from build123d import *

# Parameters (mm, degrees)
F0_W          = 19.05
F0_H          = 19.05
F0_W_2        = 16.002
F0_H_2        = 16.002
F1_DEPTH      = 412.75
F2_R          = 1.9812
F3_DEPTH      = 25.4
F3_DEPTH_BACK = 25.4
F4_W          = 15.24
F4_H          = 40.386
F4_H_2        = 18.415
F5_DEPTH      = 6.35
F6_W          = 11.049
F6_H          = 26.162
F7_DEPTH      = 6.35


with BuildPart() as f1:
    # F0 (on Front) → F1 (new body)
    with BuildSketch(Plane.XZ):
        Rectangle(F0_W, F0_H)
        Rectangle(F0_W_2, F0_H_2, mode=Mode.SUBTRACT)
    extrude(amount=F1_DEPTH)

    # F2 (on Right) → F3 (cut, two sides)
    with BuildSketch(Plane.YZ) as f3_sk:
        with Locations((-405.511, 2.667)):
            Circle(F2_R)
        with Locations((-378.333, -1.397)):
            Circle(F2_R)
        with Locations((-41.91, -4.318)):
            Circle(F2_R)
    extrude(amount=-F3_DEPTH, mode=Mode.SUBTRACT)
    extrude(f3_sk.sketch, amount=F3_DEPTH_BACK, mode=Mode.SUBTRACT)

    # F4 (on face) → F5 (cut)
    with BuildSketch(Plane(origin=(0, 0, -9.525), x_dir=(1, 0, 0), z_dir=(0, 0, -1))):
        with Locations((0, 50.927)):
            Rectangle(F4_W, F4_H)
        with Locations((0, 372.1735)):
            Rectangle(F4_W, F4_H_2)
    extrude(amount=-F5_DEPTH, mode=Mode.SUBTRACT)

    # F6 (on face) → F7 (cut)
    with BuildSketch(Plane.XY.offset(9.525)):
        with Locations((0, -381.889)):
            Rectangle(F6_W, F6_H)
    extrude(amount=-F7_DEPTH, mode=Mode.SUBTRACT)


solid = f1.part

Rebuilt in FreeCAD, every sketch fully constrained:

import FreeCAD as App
import Part
import Sketcher
from FreeCAD import Vector
Q = App.Units.Quantity

doc = App.newDocument("Part")
body = doc.addObject("PartDesign::Body", "Body")

# Sketch on XZ plane
sketch1 = body.newObject("Sketcher::SketchObject", "Sketch")
sketch1.AttachmentSupport = (doc.getObject("XZ_Plane"), [""])
sketch1.MapMode = "FlatFace"
sketch1.addGeometry([
    Part.LineSegment(Vector(-10, 10, 0), Vector(-10, -10, 0)),  # 0
    Part.LineSegment(Vector(-10, -10, 0), Vector(10, -10, 0)),  # 1
    Part.LineSegment(Vector(10, -10, 0), Vector(10, 10, 0)),  # 2
    Part.LineSegment(Vector(10, 10, 0), Vector(-10, 10, 0)),  # 3
    Part.LineSegment(Vector(8, -8, 0), Vector(-8, -8, 0)),  # 4
    Part.LineSegment(Vector(-8, -8, 0), Vector(-8, 8, 0)),  # 5
    Part.LineSegment(Vector(-8, 8, 0), Vector(8, 8, 0)),  # 6
    Part.LineSegment(Vector(8, 8, 0), Vector(8, -8, 0)),  # 7
], False)
sketch1.addConstraint([
    Sketcher.Constraint("Coincident", 0, 2, 1, 1),
    Sketcher.Constraint("Coincident", 1, 2, 2, 1),
    Sketcher.Constraint("Coincident", 2, 2, 3, 1),
    Sketcher.Constraint("Coincident", 3, 2, 0, 1),
    Sketcher.Constraint("Coincident", 4, 2, 5, 1),
    Sketcher.Constraint("Coincident", 5, 2, 6, 1),
    Sketcher.Constraint("Coincident", 6, 2, 7, 1),
    Sketcher.Constraint("Coincident", 7, 2, 4, 1),
    Sketcher.Constraint("Vertical", 0),
    Sketcher.Constraint("Horizontal", 1),
    Sketcher.Constraint("Vertical", 2),
    Sketcher.Constraint("Horizontal", 3),
    Sketcher.Constraint("Horizontal", 4),
    Sketcher.Constraint("Vertical", 5),
    Sketcher.Constraint("Horizontal", 6),
    Sketcher.Constraint("Vertical", 7),
    Sketcher.Constraint("Symmetric", 0, 2, 2, 2, -1, 1),
    Sketcher.Constraint("Symmetric", 4, 2, 6, 2, -1, 1),
    Sketcher.Constraint("Equal", 3, 0),
    Sketcher.Constraint("Equal", 6, 5),
    Sketcher.Constraint("DistanceX", 1, 1, 1, 2, Q("0.75 in")),
    Sketcher.Constraint("DistanceX", 4, 2, 4, 1, Q("0.63 in")),
])
pad1 = body.newObject("PartDesign::Pad", "Pad")
pad1.Profile = sketch1
pad1.Length = Q("16.25 in")

# Sketch on YZ plane
sketch2 = body.newObject("Sketcher::SketchObject", "Sketch001")
sketch2.AttachmentSupport = (doc.getObject("YZ_Plane"), [""])
sketch2.MapMode = "FlatFace"
sketch2.addGeometry([
    Part.Circle(Vector(-405.5, 2.7, 0), Vector(0, 0, 1), 2),
    Part.Circle(Vector(-378.3, -1.4, 0), Vector(0, 0, 1), 2),
    Part.Circle(Vector(-41.9, -4.3, 0), Vector(0, 0, 1), 2),
], False)
sketch2.addConstraint([
    Sketcher.Constraint("Equal", 0, 1),
    Sketcher.Constraint("Equal", 1, 2),
    Sketcher.Constraint("Diameter", 0, Q("0.156 in")),
    Sketcher.Constraint("DistanceX", 2, 3, -1, 1, Q("1.65 in")),
    Sketcher.Constraint("DistanceY", 2, 3, -1, 1, Q("0.17 in")),
    Sketcher.Constraint("DistanceX", 0, 3, 1, 3, Q("1.07 in")),
    Sketcher.Constraint("DistanceY", 1, 3, 0, 3, Q("0.16 in")),
    Sketcher.Constraint("DistanceX", 0, 3, -1, 1, Q("15.965 in")),
    Sketcher.Constraint("DistanceY", -1, 1, 0, 3, Q("0.105 in")),
])
pocket1 = body.newObject("PartDesign::Pocket", "Pocket")
pocket1.Profile = sketch2
pocket1.Type = "ThroughAll"
pocket1.Midplane = True

# Sketch on XY plane
sketch3 = body.newObject("Sketcher::SketchObject", "Sketch002")
sketch3.AttachmentSupport = (doc.getObject("XY_Plane"), [""])
sketch3.MapMode = "FlatFace"
sketch3.AttachmentOffset = App.Placement(Vector(0, 0, -0.375 * 25.4), App.Rotation())
sketch3.addGeometry([
    Part.LineSegment(Vector(-8, -71, 0), Vector(-8, -31, 0)),  # 0
    Part.LineSegment(Vector(-8, -31, 0), Vector(8, -31, 0)),  # 1
    Part.LineSegment(Vector(8, -31, 0), Vector(8, -71, 0)),  # 2
    Part.LineSegment(Vector(8, -71, 0), Vector(-8, -71, 0)),  # 3
    Part.LineSegment(Vector(-8, -381, 0), Vector(-8, -363, 0)),  # 4
    Part.LineSegment(Vector(-8, -363, 0), Vector(8, -363, 0)),  # 5
    Part.LineSegment(Vector(8, -363, 0), Vector(8, -381, 0)),  # 6
    Part.LineSegment(Vector(8, -381, 0), Vector(-8, -381, 0)),  # 7
], False)
sketch3.addConstraint([
    Sketcher.Constraint("Coincident", 0, 2, 1, 1),
    Sketcher.Constraint("Coincident", 1, 2, 2, 1),
    Sketcher.Constraint("Coincident", 2, 2, 3, 1),
    Sketcher.Constraint("Coincident", 3, 2, 0, 1),
    Sketcher.Constraint("Coincident", 4, 2, 5, 1),
    Sketcher.Constraint("Coincident", 5, 2, 6, 1),
    Sketcher.Constraint("Coincident", 6, 2, 7, 1),
    Sketcher.Constraint("Coincident", 7, 2, 4, 1),
    Sketcher.Constraint("Vertical", 0),
    Sketcher.Constraint("Horizontal", 1),
    Sketcher.Constraint("Vertical", 2),
    Sketcher.Constraint("Horizontal", 3),
    Sketcher.Constraint("Vertical", 4),
    Sketcher.Constraint("Horizontal", 5),
    Sketcher.Constraint("Vertical", 6),
    Sketcher.Constraint("Horizontal", 7),
    Sketcher.Constraint("Vertical", 3, 2, 4, 2),
    Sketcher.Constraint("Vertical", 2, 2, 5, 2),
    Sketcher.Constraint("DistanceX", 1, 1, 1, 2, Q("0.6 in")),
    Sketcher.Constraint("DistanceY", 0, 1, 0, 2, Q("1.59 in")),
    Sketcher.Constraint("DistanceX", 0, 2, -1, 1, Q("0.3 in")),
    Sketcher.Constraint("DistanceY", 2, 2, -1, 1, Q("2.8 in")),
    Sketcher.Constraint("DistanceY", 4, 1, 4, 2, Q("0.725 in")),
    Sketcher.Constraint("DistanceY", 4, 2, -1, 1, Q("14.29 in")),
])
pocket2 = body.newObject("PartDesign::Pocket", "Pocket001")
pocket2.Profile = sketch3
pocket2.Length = Q("0.25 in")
pocket2.Reversed = True

# Sketch on XY plane
sketch4 = body.newObject("Sketcher::SketchObject", "Sketch003")
sketch4.AttachmentSupport = (doc.getObject("XY_Plane"), [""])
sketch4.MapMode = "FlatFace"
sketch4.AttachmentOffset = App.Placement(Vector(0, 0, 0.375 * 25.4), App.Rotation())
sketch4.addGeometry([
    Part.LineSegment(Vector(-6, -369, 0), Vector(-6, -395, 0)),
    Part.LineSegment(Vector(-6, -395, 0), Vector(6, -395, 0)),
    Part.LineSegment(Vector(6, -395, 0), Vector(6, -369, 0)),
    Part.LineSegment(Vector(6, -369, 0), Vector(-6, -369, 0)),
], False)
sketch4.addConstraint([
    Sketcher.Constraint("Coincident", 0, 2, 1, 1),
    Sketcher.Constraint("Coincident", 1, 2, 2, 1),
    Sketcher.Constraint("Coincident", 2, 2, 3, 1),
    Sketcher.Constraint("Coincident", 3, 2, 0, 1),
    Sketcher.Constraint("Vertical", 0),
    Sketcher.Constraint("Horizontal", 1),
    Sketcher.Constraint("Vertical", 2),
    Sketcher.Constraint("Horizontal", 3),
    Sketcher.Constraint("DistanceY", 0, 2, 0, 1, Q("1.03 in")),
    Sketcher.Constraint("DistanceX", 1, 1, 1, 2, Q("0.435 in")),
    Sketcher.Constraint("DistanceY", 0, 2, -1, 1, Q("15.55 in")),
    Sketcher.Constraint("DistanceX", 0, 2, -1, 1, Q("0.2175 in")),
])
pocket3 = body.newObject("PartDesign::Pocket", "Pocket002")
pocket3.Profile = sketch4
pocket3.Length = Q("0.25 in")

doc.recompute()
